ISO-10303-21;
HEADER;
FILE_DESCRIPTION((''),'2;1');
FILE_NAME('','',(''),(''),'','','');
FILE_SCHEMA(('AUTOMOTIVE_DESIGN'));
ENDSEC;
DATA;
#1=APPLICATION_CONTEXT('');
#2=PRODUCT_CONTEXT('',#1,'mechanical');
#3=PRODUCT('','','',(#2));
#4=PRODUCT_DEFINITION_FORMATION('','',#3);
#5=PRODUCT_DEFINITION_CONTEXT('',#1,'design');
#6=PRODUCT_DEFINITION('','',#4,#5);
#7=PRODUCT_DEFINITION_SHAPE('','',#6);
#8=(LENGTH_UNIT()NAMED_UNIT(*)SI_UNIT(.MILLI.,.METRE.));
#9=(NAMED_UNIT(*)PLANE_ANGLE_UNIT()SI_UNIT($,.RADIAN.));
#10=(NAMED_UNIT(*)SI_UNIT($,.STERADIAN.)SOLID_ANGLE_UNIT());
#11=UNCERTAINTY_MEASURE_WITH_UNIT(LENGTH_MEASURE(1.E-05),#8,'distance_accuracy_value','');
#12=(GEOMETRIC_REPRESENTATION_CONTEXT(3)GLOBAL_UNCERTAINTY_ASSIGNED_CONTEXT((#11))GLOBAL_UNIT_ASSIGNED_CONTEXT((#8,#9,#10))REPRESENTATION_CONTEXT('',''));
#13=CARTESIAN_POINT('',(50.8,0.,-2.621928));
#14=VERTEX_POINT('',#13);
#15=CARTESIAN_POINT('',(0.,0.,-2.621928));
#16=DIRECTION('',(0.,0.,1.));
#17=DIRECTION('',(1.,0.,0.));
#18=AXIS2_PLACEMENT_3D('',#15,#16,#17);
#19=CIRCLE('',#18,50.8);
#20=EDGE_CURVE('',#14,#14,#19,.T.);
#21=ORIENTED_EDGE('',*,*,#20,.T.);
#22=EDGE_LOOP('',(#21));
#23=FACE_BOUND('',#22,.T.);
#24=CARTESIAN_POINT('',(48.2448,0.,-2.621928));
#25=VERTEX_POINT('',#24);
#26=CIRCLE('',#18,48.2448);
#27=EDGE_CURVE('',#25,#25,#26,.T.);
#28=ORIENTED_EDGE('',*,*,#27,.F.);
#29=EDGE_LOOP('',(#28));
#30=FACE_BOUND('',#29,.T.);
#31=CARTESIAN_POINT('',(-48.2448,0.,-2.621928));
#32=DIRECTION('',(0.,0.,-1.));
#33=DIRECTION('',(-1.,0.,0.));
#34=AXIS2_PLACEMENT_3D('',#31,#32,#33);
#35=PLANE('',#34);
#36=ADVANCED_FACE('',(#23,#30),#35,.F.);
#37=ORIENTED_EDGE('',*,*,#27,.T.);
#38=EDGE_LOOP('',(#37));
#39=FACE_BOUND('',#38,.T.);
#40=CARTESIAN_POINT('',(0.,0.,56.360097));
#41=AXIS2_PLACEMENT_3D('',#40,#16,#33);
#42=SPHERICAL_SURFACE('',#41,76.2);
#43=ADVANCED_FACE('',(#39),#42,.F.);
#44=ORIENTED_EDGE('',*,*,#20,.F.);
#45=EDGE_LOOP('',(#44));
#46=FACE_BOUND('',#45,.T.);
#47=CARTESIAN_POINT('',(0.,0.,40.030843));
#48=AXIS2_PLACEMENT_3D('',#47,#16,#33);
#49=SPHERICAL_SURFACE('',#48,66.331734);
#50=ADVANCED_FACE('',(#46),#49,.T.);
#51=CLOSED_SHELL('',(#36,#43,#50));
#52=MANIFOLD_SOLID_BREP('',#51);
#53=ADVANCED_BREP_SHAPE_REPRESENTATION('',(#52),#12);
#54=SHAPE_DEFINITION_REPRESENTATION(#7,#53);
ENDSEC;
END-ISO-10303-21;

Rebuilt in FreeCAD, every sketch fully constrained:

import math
import FreeCAD as App
import Part
import Sketcher
Q = App.Units.Quantity

doc = App.newDocument("Part")
params = doc.addObject("Spreadsheet::Sheet", "Params")
for row, (alias, value) in enumerate([
    ("sketch1_radius", "3 in"),
    ("revolution_angle", "360 deg"),
], start=1):
    params.set(f"A{row}", alias)
    params.set(f"B{row}", "=" + value)
    params.setAlias(f"B{row}", alias)

body = doc.addObject("PartDesign::Body", "Body")

sketch1 = doc.addObject("Sketcher::SketchObject", "Sketch")
body.addObject(sketch1)
sketch1.AttachmentSupport = (doc.XZ_Plane, [""])
sketch1.MapMode = "FlatFace"
sketch1.addGeometry([
    Part.LineSegment(App.Vector(0, -19.8, 0), App.Vector(0, -26.3, 0)),
    Part.ArcOfCircle(Part.Circle(App.Vector(0, 40, 0), App.Vector(0, 0, 1), 66.3), math.radians(-140), math.radians(-90)),
    Part.LineSegment(App.Vector(-50.8, -2.6, 0), App.Vector(-48.2, -2.6, 0)),
    Part.ArcOfCircle(Part.Circle(App.Vector(0, 56.4, 0), App.Vector(0, 0, 1), 76.2), math.radians(-129), math.radians(-90)),
], False)
sketch1.addConstraint([
    Sketcher.Constraint("Coincident", 0, 2, 1, 2),
    Sketcher.Constraint("Coincident", 1, 1, 2, 1),
    Sketcher.Constraint("Coincident", 2, 2, 3, 1),
    Sketcher.Constraint("Coincident", 3, 2, 0, 1),
    Sketcher.Constraint("Vertical", 0),
    Sketcher.Constraint("Horizontal", 2),
    Sketcher.Constraint("PointOnObject", 1, 3, -2),
    Sketcher.Constraint("PointOnObject", 3, 3, -2),
    Sketcher.Constraint("PointOnObject", 0, 2, -2),
    Sketcher.Constraint("Radius", 3, Q("3 in")),
    Sketcher.Constraint("DistanceX", 1, 1, -1, 1, Q("2 in")),
    Sketcher.Constraint("DistanceX", 2, 1, 2, 2, 2.5552),
    Sketcher.Constraint("Radius", 1, 66.331734),
    Sketcher.Constraint("DistanceY", 0, 2, -1, 1, 26.30089),
])
sketch1.setExpression("Constraints[9]", "Params.sketch1_radius")
revolution = doc.addObject("PartDesign::Revolution", "Revolution")
body.addObject(revolution)
revolution.Profile = sketch1
revolution.ReferenceAxis = (sketch1, ["V_Axis"])
revolution.setExpression("Angle", "Params.revolution_angle")

doc.recompute()
